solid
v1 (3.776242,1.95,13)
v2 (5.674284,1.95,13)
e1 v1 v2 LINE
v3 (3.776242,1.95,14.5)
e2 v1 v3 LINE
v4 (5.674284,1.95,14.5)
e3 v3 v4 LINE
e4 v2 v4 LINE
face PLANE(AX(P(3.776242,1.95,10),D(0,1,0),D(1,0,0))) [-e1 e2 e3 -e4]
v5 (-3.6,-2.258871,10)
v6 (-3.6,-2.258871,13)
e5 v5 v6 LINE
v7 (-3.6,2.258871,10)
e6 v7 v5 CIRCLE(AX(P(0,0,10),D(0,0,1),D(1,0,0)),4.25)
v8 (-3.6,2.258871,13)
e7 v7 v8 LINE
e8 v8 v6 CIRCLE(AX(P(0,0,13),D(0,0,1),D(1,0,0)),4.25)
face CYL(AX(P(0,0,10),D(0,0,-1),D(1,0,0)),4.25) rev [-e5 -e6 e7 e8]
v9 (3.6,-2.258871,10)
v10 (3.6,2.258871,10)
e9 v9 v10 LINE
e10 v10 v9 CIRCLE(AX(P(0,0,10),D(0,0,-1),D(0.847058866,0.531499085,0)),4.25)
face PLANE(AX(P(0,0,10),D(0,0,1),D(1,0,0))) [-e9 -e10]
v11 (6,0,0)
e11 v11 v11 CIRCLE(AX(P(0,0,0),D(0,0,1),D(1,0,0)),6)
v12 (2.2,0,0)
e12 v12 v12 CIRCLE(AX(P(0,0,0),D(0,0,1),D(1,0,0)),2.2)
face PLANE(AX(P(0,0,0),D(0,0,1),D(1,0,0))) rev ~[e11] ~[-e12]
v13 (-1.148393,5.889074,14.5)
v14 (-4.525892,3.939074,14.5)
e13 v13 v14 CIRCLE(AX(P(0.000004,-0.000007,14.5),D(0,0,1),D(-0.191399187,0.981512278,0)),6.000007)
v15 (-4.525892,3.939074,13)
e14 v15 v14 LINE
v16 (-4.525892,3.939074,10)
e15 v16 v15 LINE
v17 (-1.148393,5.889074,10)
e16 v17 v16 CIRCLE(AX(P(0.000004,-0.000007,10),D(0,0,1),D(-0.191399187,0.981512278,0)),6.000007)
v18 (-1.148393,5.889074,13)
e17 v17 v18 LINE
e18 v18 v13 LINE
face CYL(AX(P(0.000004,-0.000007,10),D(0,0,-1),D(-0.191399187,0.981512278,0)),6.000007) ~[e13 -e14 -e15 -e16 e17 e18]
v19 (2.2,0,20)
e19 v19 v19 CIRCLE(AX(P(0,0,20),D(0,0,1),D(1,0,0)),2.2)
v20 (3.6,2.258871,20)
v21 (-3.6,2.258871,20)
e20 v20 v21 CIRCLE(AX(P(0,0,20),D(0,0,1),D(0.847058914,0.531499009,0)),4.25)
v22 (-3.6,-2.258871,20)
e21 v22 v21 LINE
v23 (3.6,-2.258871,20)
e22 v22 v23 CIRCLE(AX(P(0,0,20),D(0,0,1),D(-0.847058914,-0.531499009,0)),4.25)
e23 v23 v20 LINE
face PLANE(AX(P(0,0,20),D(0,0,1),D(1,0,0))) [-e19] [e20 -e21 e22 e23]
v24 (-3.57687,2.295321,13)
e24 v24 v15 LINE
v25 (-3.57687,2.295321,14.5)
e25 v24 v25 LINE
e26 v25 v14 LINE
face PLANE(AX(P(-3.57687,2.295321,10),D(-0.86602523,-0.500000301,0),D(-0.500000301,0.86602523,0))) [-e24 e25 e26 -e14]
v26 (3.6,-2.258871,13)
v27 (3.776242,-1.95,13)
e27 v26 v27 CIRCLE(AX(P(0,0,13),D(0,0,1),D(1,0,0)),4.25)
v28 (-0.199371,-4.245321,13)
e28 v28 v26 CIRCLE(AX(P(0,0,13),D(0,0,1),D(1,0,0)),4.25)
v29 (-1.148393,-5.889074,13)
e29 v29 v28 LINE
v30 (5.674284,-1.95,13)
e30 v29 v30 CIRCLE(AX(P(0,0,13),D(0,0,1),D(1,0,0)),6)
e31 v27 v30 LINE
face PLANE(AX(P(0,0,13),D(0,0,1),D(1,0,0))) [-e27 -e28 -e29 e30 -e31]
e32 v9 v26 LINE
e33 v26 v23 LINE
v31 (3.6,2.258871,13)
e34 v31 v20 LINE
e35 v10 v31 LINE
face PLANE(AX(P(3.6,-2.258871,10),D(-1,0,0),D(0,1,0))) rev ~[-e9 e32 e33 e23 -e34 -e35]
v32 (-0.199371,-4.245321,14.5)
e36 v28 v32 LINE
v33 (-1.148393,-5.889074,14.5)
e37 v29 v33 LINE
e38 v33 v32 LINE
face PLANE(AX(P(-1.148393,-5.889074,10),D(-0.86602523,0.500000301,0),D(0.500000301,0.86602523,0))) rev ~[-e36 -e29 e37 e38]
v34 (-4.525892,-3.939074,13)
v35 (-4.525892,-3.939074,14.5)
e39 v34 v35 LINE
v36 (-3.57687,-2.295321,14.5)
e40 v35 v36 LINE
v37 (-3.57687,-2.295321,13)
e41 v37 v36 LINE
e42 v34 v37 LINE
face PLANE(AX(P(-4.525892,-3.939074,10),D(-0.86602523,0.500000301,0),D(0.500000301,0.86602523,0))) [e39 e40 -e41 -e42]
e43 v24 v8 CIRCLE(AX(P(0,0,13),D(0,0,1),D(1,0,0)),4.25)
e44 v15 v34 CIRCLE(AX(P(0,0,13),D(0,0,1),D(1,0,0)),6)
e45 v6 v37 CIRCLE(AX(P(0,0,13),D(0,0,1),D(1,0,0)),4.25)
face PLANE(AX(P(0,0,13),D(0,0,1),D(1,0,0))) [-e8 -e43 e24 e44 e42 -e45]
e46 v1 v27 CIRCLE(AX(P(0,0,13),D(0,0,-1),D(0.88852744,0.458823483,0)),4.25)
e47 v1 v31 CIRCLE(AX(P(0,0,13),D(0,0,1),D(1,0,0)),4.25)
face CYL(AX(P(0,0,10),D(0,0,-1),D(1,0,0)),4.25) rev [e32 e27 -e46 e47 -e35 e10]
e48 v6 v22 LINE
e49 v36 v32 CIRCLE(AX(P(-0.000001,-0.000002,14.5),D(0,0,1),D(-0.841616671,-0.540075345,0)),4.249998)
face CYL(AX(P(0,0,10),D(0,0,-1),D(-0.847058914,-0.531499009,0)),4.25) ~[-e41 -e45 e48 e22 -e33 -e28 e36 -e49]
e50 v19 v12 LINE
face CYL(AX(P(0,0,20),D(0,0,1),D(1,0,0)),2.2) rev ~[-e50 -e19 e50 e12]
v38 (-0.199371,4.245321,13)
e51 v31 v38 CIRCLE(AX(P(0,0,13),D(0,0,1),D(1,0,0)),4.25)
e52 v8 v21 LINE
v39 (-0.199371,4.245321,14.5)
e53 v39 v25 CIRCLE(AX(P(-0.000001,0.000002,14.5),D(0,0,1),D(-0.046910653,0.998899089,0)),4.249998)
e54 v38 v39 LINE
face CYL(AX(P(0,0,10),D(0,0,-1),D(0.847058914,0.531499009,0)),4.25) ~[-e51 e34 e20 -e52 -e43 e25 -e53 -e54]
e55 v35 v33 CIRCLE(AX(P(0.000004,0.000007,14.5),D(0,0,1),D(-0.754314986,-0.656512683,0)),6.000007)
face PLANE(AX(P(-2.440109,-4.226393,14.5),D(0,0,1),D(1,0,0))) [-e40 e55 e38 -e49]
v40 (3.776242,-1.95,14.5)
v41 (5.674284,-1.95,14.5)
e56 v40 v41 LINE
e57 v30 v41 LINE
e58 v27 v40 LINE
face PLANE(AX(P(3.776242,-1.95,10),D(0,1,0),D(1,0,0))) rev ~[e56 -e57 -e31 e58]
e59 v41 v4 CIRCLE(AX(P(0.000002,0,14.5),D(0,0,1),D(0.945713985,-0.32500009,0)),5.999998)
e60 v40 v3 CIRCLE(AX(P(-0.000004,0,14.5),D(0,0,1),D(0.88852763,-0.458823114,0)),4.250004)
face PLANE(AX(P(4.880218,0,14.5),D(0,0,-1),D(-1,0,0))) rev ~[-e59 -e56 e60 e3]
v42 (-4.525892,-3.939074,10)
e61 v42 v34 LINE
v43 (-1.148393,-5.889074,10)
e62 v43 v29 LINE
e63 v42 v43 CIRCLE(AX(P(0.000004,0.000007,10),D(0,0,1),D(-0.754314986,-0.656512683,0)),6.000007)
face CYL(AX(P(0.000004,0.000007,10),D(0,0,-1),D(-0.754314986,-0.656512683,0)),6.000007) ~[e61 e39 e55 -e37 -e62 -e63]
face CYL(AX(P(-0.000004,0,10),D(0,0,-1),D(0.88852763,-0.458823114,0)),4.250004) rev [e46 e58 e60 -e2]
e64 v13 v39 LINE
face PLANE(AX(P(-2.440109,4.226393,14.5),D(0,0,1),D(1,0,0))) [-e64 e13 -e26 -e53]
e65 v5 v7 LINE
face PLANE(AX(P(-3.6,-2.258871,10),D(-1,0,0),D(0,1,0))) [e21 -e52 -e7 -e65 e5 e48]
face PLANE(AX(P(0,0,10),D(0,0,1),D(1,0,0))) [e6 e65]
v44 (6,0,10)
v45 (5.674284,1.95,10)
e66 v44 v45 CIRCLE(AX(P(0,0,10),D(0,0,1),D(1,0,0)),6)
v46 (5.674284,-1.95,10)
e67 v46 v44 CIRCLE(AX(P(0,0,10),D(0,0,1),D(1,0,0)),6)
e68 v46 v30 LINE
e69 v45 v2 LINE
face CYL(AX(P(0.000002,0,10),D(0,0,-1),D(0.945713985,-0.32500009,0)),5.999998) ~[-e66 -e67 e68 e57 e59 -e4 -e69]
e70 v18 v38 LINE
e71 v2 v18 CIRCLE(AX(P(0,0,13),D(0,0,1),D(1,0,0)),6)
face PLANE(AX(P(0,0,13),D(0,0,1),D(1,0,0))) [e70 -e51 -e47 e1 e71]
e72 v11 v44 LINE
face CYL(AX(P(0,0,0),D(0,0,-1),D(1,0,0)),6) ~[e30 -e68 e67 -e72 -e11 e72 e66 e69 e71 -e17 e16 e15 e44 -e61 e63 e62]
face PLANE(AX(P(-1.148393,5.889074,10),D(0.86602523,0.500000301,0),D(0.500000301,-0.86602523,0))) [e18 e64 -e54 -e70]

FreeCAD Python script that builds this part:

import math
import FreeCAD as App
import Part
import Sketcher
from FreeCAD import Vector
Q = App.Units.Quantity

doc = App.newDocument("Part")
params = doc.addObject("Spreadsheet::Sheet", "Params")
for row, (alias, value) in enumerate([
    ("sketch1_diameter", "12 mm"),
    ("pad1_length", "10 mm"),
    ("sketch2_radius", "4.25 mm"),
    ("pad2_length", "10 mm"),
    ("sketch3_diameter", "4.4 mm"),
    ("sketch4_radius", "5.999998 mm"),
    ("sketch4_radius2", "4.249998 mm"),
    ("pad3_length", "4.5 mm"),
    ("sketch5_diameter", "12 mm"),
    ("sketch5_diameter2", "8.5 mm"),
    ("pad4_length", "3 mm"),
], start=1):
    params.set(f"A{row}", alias)
    params.set(f"B{row}", "=" + value)
    params.setAlias(f"B{row}", alias)

body = doc.addObject("PartDesign::Body", "Body")

# Sketch on XY plane
sketch1 = body.newObject("Sketcher::SketchObject", "Sketch")
sketch1.AttachmentSupport = (doc.getObject("XY_Plane"), [""])
sketch1.MapMode = "FlatFace"
sketch1.addGeometry(Part.Circle(Vector(0, 0, 0), Vector(0, 0, 1), 6), False)
sketch1.addConstraint([
    Sketcher.Constraint("Coincident", 0, 3, -1, 1),
    Sketcher.Constraint("Diameter", 0, 12.0),
])
sketch1.setExpression("Constraints[1]", "Params.sketch1_diameter")
pad1 = body.newObject("PartDesign::Pad", "Pad")
pad1.Profile = sketch1
pad1.setExpression("Length", "Params.pad1_length")

# Sketch on XY plane
sketch2 = body.newObject("Sketcher::SketchObject", "Sketch001")
sketch2.AttachmentSupport = (doc.getObject("XY_Plane"), [""])
sketch2.MapMode = "FlatFace"
sketch2.AttachmentOffset = App.Placement(Vector(0, 0, 10), App.Rotation())
sketch2.addGeometry([
    Part.ArcOfCircle(Part.Circle(Vector(0, 0, 0), Vector(0, 0, 1), 4.2), math.radians(-148), math.radians(-32)),
    Part.LineSegment(Vector(3.6, -2.3, 0), Vector(3.6, 2.3, 0)),
    Part.ArcOfCircle(Part.Circle(Vector(0, 0, 0), Vector(0, 0, 1), 4.2), math.radians(32), math.radians(148)),
    Part.LineSegment(Vector(-3.6, 2.3, 0), Vector(-3.6, -2.3, 0)),
], False)
sketch2.addConstraint([
    Sketcher.Constraint("Coincident", 0, 2, 1, 1),
    Sketcher.Constraint("Coincident", 1, 2, 2, 1),
    Sketcher.Constraint("Coincident", 2, 2, 3, 1),
    Sketcher.Constraint("Coincident", 3, 2, 0, 1),
    Sketcher.Constraint("Vertical", 1),
    Sketcher.Constraint("Vertical", 3),
    Sketcher.Constraint("Coincident", 0, 3, -1, 1),
    Sketcher.Constraint("Coincident", 2, 3, -1, 1),
    Sketcher.Constraint("Equal", 0, 2),
    Sketcher.Constraint("Horizontal", 1, 2, 2, 2),
    Sketcher.Constraint("Radius", 0, 4.25),
    Sketcher.Constraint("DistanceX", -1, 1, 0, 2, 3.6),
])
sketch2.setExpression("Constraints[10]", "Params.sketch2_radius")
pad2 = body.newObject("PartDesign::Pad", "Pad001")
pad2.Profile = sketch2
pad2.setExpression("Length", "Params.pad2_length")

# Sketch on XY plane
sketch3 = body.newObject("Sketcher::SketchObject", "Sketch002")
sketch3.AttachmentSupport = (doc.getObject("XY_Plane"), [""])
sketch3.MapMode = "FlatFace"
sketch3.AttachmentOffset = App.Placement(Vector(0, 0, 20), App.Rotation())
sketch3.addGeometry(Part.Circle(Vector(0, 0, 0), Vector(0, 0, 1), 2.2), False)
sketch3.addConstraint([
    Sketcher.Constraint("Coincident", 0, 3, -1, 1),
    Sketcher.Constraint("Diameter", 0, 4.4),
])
sketch3.setExpression("Constraints[1]", "Params.sketch3_diameter")
pocket1 = body.newObject("PartDesign::Pocket", "Pocket")
pocket1.Profile = sketch3
pocket1.Type = "ThroughAll"

# Sketch on XY plane
sketch4 = body.newObject("Sketcher::SketchObject", "Sketch003")
sketch4.AttachmentSupport = (doc.getObject("XY_Plane"), [""])
sketch4.MapMode = "FlatFace"
sketch4.AttachmentOffset = App.Placement(Vector(0, 0, 10), App.Rotation())
sketch4.addGeometry([
    Part.ArcOfCircle(Part.Circle(Vector(0, 0, 0), Vector(0, 0, 1), 4.3), math.radians(-27), math.radians(27)),  # 0
    Part.LineSegment(Vector(3.8, -1.9, 0), Vector(5.7, -1.9, 0)),  # 1
    Part.ArcOfCircle(Part.Circle(Vector(0, 0, 0), Vector(0, 0, 1), 6), math.radians(-19), math.radians(19)),  # 2
    Part.LineSegment(Vector(5.7, 1.9, 0), Vector(3.8, 1.9, 0)),  # 3
    Part.ArcOfCircle(Part.Circle(Vector(0, 0, 0), Vector(0, 0, 1), 6), math.radians(101), math.radians(139)),  # 4
    Part.LineSegment(Vector(-4.5, 3.9, 0), Vector(-3.6, 2.3, 0)),  # 5
    Part.ArcOfCircle(Part.Circle(Vector(0, 0, 0), Vector(0, 0, 1), 4.2), math.radians(93), math.radians(147)),  # 6
    Part.LineSegment(Vector(-0.2, 4.2, 0), Vector(-1.1, 5.9, 0)),  # 7
    Part.ArcOfCircle(Part.Circle(Vector(0, 0, 0), Vector(0, 0, 1), 6), math.radians(-139), math.radians(-101)),  # 8
    Part.LineSegment(Vector(-1.1, -5.9, 0), Vector(-0.2, -4.2, 0)),  # 9
    Part.ArcOfCircle(Part.Circle(Vector(0, 0, 0), Vector(0, 0, 1), 4.2), math.radians(-147), math.radians(-93)),  # 10
    Part.LineSegment(Vector(-3.6, -2.3, 0), Vector(-4.5, -3.9, 0)),  # 11
], False)
sketch4.addConstraint([
    Sketcher.Constraint("Coincident", 0, 1, 1, 1),
    Sketcher.Constraint("Coincident", 1, 2, 2, 1),
    Sketcher.Constraint("Coincident", 2, 2, 3, 1),
    Sketcher.Constraint("Coincident", 3, 2, 0, 2),
    Sketcher.Constraint("Coincident", 4, 2, 5, 1),
    Sketcher.Constraint("Coincident", 5, 2, 6, 2),
    Sketcher.Constraint("Coincident", 6, 1, 7, 1),
    Sketcher.Constraint("Coincident", 7, 2, 4, 1),
    Sketcher.Constraint("Coincident", 8, 2, 9, 1),
    Sketcher.Constraint("Coincident", 9, 2, 10, 2),
    Sketcher.Constraint("Coincident", 10, 1, 11, 1),
    Sketcher.Constraint("Coincident", 11, 2, 8, 1),
    Sketcher.Constraint("Horizontal", 1),
    Sketcher.Constraint("Horizontal", 3),
    Sketcher.Constraint("Coincident", 0, 3, -1, 1),
    Sketcher.Constraint("Coincident", 2, 3, -1, 1),
    Sketcher.Constraint("Coincident", 4, 3, -1, 1),
    Sketcher.Constraint("Coincident", 6, 3, -1, 1),
    Sketcher.Constraint("Coincident", 8, 3, -1, 1),
    Sketcher.Constraint("Coincident", 10, 3, -1, 1),
    Sketcher.Constraint("Equal", 4, 8),
    Sketcher.Constraint("Equal", 6, 10),
    Sketcher.Constraint("Parallel", 5, 7),
    Sketcher.Constraint("Parallel", 9, 11),
    Sketcher.Constraint("Vertical", 1, 2, 2, 2),
    Sketcher.Constraint("Vertical", 7, 2, 8, 2),
    Sketcher.Constraint("Vertical", 6, 1, 9, 2),
    Sketcher.Constraint("Vertical", 5, 2, 10, 1),
    Sketcher.Constraint("Equal", 5, 7),
    Sketcher.Constraint("Radius", 2, 5.999998),
    Sketcher.Constraint("Angle", 5, Q("-59.99998 deg")),
    Sketcher.Constraint("Radius", 6, 4.249998),
    Sketcher.Constraint("DistanceY", 1, 2, 2, 2, 3.9),
    Sketcher.Constraint("DistanceY", 5, 2, 6, 1, 1.95),
    Sketcher.Constraint("Radius", 0, 4.250004),
    Sketcher.Constraint("Radius", 4, 6.000007),
])
sketch4.setExpression("Constraints[29]", "Params.sketch4_radius")
sketch4.setExpression("Constraints[31]", "Params.sketch4_radius2")
pad3 = body.newObject("PartDesign::Pad", "Pad002")
pad3.Profile = sketch4
pad3.setExpression("Length", "Params.pad3_length")

# Sketch on XY plane
sketch5 = body.newObject("Sketcher::SketchObject", "Sketch004")
sketch5.AttachmentSupport = (doc.getObject("XY_Plane"), [""])
sketch5.MapMode = "FlatFace"
sketch5.AttachmentOffset = App.Placement(Vector(0, 0, 10), App.Rotation())
sketch5.addGeometry([
    Part.Circle(Vector(0, 0, 0), Vector(0, 0, 1), 6),
    Part.Circle(Vector(0, 0, 0), Vector(0, 0, 1), 4.2),
], False)
sketch5.addConstraint([
    Sketcher.Constraint("Coincident", 0, 3, -1, 1),
    Sketcher.Constraint("Coincident", 1, 3, -1, 1),
    Sketcher.Constraint("Diameter", 0, 12.0),
    Sketcher.Constraint("Diameter", 1, 8.5),
])
sketch5.setExpression("Constraints[2]", "Params.sketch5_diameter")
sketch5.setExpression("Constraints[3]", "Params.sketch5_diameter2")
pad4 = body.newObject("PartDesign::Pad", "Pad003")
pad4.Profile = sketch5
pad4.setExpression("Length", "Params.pad4_length")

doc.recompute()
